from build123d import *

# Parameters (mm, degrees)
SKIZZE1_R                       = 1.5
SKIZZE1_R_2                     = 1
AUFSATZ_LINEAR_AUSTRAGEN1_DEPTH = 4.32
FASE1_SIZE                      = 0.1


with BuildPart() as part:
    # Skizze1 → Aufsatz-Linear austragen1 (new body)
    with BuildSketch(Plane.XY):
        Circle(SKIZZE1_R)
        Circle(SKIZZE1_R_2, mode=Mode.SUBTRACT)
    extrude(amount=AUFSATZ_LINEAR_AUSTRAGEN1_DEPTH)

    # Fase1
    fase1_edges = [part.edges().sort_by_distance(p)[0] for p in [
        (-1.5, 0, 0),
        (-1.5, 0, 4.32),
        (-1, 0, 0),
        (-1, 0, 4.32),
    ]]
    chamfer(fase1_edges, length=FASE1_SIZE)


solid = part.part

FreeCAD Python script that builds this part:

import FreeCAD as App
import Part
import Sketcher
from FreeCAD import Vector
Q = App.Units.Quantity


def edges_at(feature, points):
    """Names of the edges that pass closest to the given points."""
    edges = feature.Shape.Edges
    near = lambda p: min(range(len(edges)), key=lambda i: edges[i].distToShape(Part.Vertex(*p))[0])
    return sorted({f"Edge{near(p) + 1}" for p in points})

doc = App.newDocument("Part")
body = doc.addObject("PartDesign::Body", "Body")

sketch1 = body.newObject("Sketcher::SketchObject", "Sketch")
sketch1.AttachmentSupport = (doc.getObject("XY_Plane"), [""])
sketch1.MapMode = "FlatFace"
sketch1.addGeometry([
    Part.Circle(Vector(0, 0, 0), Vector(0, 0, 1), 1.5),
    Part.Circle(Vector(0, 0, 0), Vector(0, 0, 1), 1),
], False)
sketch1.addConstraint([
    Sketcher.Constraint("Coincident", 0, 3, -1, 1),
    Sketcher.Constraint("Coincident", 1, 3, -1, 1),
    Sketcher.Constraint("Diameter", 0, Q("3 mm")),
    Sketcher.Constraint("Diameter", 1, Q("2 mm")),
])
pad1 = body.newObject("PartDesign::Pad", "Pad")
pad1.Profile = sketch1
pad1.Length = 4.32
doc.recompute()

chamfer = body.newObject("PartDesign::Chamfer", "Chamfer")
chamfer.Base = (pad1, edges_at(pad1, [
    (-1.5, 0, 0),
    (-1.5, 0, 4.32),
    (-1, 0, 0),
    (-1, 0, 4.32),
]))
chamfer.Size = 0.1

doc.recompute()
